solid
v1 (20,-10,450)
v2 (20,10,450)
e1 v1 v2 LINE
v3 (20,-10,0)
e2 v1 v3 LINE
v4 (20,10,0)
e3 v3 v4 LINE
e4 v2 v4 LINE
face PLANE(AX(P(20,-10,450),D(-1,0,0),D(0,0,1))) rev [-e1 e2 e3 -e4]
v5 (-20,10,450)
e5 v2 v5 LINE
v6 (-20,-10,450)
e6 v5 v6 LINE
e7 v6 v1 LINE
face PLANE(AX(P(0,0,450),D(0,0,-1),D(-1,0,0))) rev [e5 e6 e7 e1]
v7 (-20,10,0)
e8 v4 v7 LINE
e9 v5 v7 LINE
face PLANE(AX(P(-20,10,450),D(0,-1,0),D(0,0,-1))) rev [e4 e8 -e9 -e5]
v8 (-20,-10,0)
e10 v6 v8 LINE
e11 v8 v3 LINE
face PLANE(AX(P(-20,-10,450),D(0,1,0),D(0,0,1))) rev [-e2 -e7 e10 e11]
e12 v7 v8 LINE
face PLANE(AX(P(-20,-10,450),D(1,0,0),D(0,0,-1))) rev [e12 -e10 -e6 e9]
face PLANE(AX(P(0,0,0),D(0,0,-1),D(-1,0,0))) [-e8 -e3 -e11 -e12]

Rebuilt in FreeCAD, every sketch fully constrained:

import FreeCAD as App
import Part
import Sketcher

V = App.Vector

doc = App.newDocument("Part")
body = doc.addObject("PartDesign::Body", "Body")

# Sketch on XY plane
sketch1 = doc.addObject("Sketcher::SketchObject", "Sketch")
body.addObject(sketch1)
sketch1.AttachmentSupport = (doc.XY_Plane, [""])
sketch1.MapMode = "FlatFace"
sketch1.addGeometry([
    Part.LineSegment(V(-20, 10, 0), V(-20, -10, 0)),
    Part.LineSegment(V(-20, -10, 0), V(20, -10, 0)),
    Part.LineSegment(V(20, -10, 0), V(20, 10, 0)),
    Part.LineSegment(V(20, 10, 0), V(-20, 10, 0)),
], False)
sketch1.addConstraint([
    Sketcher.Constraint("Coincident", 0, 2, 1, 1),
    Sketcher.Constraint("Coincident", 1, 2, 2, 1),
    Sketcher.Constraint("Coincident", 2, 2, 3, 1),
    Sketcher.Constraint("Coincident", 3, 2, 0, 1),
    Sketcher.Constraint("Vertical", 0),
    Sketcher.Constraint("Horizontal", 1),
    Sketcher.Constraint("Vertical", 2),
    Sketcher.Constraint("Horizontal", 3),
    Sketcher.Constraint("Symmetric", 0, 2, 2, 2, -1, 1),
    Sketcher.Constraint("DistanceX", 1, 1, 1, 2, 40.0),
    Sketcher.Constraint("DistanceY", 0, 2, 0, 1, 20.0),
])
pad1 = doc.addObject("PartDesign::Pad", "Pad")
body.addObject(pad1)
pad1.Profile = sketch1
pad1.Length = 450

doc.recompute()
